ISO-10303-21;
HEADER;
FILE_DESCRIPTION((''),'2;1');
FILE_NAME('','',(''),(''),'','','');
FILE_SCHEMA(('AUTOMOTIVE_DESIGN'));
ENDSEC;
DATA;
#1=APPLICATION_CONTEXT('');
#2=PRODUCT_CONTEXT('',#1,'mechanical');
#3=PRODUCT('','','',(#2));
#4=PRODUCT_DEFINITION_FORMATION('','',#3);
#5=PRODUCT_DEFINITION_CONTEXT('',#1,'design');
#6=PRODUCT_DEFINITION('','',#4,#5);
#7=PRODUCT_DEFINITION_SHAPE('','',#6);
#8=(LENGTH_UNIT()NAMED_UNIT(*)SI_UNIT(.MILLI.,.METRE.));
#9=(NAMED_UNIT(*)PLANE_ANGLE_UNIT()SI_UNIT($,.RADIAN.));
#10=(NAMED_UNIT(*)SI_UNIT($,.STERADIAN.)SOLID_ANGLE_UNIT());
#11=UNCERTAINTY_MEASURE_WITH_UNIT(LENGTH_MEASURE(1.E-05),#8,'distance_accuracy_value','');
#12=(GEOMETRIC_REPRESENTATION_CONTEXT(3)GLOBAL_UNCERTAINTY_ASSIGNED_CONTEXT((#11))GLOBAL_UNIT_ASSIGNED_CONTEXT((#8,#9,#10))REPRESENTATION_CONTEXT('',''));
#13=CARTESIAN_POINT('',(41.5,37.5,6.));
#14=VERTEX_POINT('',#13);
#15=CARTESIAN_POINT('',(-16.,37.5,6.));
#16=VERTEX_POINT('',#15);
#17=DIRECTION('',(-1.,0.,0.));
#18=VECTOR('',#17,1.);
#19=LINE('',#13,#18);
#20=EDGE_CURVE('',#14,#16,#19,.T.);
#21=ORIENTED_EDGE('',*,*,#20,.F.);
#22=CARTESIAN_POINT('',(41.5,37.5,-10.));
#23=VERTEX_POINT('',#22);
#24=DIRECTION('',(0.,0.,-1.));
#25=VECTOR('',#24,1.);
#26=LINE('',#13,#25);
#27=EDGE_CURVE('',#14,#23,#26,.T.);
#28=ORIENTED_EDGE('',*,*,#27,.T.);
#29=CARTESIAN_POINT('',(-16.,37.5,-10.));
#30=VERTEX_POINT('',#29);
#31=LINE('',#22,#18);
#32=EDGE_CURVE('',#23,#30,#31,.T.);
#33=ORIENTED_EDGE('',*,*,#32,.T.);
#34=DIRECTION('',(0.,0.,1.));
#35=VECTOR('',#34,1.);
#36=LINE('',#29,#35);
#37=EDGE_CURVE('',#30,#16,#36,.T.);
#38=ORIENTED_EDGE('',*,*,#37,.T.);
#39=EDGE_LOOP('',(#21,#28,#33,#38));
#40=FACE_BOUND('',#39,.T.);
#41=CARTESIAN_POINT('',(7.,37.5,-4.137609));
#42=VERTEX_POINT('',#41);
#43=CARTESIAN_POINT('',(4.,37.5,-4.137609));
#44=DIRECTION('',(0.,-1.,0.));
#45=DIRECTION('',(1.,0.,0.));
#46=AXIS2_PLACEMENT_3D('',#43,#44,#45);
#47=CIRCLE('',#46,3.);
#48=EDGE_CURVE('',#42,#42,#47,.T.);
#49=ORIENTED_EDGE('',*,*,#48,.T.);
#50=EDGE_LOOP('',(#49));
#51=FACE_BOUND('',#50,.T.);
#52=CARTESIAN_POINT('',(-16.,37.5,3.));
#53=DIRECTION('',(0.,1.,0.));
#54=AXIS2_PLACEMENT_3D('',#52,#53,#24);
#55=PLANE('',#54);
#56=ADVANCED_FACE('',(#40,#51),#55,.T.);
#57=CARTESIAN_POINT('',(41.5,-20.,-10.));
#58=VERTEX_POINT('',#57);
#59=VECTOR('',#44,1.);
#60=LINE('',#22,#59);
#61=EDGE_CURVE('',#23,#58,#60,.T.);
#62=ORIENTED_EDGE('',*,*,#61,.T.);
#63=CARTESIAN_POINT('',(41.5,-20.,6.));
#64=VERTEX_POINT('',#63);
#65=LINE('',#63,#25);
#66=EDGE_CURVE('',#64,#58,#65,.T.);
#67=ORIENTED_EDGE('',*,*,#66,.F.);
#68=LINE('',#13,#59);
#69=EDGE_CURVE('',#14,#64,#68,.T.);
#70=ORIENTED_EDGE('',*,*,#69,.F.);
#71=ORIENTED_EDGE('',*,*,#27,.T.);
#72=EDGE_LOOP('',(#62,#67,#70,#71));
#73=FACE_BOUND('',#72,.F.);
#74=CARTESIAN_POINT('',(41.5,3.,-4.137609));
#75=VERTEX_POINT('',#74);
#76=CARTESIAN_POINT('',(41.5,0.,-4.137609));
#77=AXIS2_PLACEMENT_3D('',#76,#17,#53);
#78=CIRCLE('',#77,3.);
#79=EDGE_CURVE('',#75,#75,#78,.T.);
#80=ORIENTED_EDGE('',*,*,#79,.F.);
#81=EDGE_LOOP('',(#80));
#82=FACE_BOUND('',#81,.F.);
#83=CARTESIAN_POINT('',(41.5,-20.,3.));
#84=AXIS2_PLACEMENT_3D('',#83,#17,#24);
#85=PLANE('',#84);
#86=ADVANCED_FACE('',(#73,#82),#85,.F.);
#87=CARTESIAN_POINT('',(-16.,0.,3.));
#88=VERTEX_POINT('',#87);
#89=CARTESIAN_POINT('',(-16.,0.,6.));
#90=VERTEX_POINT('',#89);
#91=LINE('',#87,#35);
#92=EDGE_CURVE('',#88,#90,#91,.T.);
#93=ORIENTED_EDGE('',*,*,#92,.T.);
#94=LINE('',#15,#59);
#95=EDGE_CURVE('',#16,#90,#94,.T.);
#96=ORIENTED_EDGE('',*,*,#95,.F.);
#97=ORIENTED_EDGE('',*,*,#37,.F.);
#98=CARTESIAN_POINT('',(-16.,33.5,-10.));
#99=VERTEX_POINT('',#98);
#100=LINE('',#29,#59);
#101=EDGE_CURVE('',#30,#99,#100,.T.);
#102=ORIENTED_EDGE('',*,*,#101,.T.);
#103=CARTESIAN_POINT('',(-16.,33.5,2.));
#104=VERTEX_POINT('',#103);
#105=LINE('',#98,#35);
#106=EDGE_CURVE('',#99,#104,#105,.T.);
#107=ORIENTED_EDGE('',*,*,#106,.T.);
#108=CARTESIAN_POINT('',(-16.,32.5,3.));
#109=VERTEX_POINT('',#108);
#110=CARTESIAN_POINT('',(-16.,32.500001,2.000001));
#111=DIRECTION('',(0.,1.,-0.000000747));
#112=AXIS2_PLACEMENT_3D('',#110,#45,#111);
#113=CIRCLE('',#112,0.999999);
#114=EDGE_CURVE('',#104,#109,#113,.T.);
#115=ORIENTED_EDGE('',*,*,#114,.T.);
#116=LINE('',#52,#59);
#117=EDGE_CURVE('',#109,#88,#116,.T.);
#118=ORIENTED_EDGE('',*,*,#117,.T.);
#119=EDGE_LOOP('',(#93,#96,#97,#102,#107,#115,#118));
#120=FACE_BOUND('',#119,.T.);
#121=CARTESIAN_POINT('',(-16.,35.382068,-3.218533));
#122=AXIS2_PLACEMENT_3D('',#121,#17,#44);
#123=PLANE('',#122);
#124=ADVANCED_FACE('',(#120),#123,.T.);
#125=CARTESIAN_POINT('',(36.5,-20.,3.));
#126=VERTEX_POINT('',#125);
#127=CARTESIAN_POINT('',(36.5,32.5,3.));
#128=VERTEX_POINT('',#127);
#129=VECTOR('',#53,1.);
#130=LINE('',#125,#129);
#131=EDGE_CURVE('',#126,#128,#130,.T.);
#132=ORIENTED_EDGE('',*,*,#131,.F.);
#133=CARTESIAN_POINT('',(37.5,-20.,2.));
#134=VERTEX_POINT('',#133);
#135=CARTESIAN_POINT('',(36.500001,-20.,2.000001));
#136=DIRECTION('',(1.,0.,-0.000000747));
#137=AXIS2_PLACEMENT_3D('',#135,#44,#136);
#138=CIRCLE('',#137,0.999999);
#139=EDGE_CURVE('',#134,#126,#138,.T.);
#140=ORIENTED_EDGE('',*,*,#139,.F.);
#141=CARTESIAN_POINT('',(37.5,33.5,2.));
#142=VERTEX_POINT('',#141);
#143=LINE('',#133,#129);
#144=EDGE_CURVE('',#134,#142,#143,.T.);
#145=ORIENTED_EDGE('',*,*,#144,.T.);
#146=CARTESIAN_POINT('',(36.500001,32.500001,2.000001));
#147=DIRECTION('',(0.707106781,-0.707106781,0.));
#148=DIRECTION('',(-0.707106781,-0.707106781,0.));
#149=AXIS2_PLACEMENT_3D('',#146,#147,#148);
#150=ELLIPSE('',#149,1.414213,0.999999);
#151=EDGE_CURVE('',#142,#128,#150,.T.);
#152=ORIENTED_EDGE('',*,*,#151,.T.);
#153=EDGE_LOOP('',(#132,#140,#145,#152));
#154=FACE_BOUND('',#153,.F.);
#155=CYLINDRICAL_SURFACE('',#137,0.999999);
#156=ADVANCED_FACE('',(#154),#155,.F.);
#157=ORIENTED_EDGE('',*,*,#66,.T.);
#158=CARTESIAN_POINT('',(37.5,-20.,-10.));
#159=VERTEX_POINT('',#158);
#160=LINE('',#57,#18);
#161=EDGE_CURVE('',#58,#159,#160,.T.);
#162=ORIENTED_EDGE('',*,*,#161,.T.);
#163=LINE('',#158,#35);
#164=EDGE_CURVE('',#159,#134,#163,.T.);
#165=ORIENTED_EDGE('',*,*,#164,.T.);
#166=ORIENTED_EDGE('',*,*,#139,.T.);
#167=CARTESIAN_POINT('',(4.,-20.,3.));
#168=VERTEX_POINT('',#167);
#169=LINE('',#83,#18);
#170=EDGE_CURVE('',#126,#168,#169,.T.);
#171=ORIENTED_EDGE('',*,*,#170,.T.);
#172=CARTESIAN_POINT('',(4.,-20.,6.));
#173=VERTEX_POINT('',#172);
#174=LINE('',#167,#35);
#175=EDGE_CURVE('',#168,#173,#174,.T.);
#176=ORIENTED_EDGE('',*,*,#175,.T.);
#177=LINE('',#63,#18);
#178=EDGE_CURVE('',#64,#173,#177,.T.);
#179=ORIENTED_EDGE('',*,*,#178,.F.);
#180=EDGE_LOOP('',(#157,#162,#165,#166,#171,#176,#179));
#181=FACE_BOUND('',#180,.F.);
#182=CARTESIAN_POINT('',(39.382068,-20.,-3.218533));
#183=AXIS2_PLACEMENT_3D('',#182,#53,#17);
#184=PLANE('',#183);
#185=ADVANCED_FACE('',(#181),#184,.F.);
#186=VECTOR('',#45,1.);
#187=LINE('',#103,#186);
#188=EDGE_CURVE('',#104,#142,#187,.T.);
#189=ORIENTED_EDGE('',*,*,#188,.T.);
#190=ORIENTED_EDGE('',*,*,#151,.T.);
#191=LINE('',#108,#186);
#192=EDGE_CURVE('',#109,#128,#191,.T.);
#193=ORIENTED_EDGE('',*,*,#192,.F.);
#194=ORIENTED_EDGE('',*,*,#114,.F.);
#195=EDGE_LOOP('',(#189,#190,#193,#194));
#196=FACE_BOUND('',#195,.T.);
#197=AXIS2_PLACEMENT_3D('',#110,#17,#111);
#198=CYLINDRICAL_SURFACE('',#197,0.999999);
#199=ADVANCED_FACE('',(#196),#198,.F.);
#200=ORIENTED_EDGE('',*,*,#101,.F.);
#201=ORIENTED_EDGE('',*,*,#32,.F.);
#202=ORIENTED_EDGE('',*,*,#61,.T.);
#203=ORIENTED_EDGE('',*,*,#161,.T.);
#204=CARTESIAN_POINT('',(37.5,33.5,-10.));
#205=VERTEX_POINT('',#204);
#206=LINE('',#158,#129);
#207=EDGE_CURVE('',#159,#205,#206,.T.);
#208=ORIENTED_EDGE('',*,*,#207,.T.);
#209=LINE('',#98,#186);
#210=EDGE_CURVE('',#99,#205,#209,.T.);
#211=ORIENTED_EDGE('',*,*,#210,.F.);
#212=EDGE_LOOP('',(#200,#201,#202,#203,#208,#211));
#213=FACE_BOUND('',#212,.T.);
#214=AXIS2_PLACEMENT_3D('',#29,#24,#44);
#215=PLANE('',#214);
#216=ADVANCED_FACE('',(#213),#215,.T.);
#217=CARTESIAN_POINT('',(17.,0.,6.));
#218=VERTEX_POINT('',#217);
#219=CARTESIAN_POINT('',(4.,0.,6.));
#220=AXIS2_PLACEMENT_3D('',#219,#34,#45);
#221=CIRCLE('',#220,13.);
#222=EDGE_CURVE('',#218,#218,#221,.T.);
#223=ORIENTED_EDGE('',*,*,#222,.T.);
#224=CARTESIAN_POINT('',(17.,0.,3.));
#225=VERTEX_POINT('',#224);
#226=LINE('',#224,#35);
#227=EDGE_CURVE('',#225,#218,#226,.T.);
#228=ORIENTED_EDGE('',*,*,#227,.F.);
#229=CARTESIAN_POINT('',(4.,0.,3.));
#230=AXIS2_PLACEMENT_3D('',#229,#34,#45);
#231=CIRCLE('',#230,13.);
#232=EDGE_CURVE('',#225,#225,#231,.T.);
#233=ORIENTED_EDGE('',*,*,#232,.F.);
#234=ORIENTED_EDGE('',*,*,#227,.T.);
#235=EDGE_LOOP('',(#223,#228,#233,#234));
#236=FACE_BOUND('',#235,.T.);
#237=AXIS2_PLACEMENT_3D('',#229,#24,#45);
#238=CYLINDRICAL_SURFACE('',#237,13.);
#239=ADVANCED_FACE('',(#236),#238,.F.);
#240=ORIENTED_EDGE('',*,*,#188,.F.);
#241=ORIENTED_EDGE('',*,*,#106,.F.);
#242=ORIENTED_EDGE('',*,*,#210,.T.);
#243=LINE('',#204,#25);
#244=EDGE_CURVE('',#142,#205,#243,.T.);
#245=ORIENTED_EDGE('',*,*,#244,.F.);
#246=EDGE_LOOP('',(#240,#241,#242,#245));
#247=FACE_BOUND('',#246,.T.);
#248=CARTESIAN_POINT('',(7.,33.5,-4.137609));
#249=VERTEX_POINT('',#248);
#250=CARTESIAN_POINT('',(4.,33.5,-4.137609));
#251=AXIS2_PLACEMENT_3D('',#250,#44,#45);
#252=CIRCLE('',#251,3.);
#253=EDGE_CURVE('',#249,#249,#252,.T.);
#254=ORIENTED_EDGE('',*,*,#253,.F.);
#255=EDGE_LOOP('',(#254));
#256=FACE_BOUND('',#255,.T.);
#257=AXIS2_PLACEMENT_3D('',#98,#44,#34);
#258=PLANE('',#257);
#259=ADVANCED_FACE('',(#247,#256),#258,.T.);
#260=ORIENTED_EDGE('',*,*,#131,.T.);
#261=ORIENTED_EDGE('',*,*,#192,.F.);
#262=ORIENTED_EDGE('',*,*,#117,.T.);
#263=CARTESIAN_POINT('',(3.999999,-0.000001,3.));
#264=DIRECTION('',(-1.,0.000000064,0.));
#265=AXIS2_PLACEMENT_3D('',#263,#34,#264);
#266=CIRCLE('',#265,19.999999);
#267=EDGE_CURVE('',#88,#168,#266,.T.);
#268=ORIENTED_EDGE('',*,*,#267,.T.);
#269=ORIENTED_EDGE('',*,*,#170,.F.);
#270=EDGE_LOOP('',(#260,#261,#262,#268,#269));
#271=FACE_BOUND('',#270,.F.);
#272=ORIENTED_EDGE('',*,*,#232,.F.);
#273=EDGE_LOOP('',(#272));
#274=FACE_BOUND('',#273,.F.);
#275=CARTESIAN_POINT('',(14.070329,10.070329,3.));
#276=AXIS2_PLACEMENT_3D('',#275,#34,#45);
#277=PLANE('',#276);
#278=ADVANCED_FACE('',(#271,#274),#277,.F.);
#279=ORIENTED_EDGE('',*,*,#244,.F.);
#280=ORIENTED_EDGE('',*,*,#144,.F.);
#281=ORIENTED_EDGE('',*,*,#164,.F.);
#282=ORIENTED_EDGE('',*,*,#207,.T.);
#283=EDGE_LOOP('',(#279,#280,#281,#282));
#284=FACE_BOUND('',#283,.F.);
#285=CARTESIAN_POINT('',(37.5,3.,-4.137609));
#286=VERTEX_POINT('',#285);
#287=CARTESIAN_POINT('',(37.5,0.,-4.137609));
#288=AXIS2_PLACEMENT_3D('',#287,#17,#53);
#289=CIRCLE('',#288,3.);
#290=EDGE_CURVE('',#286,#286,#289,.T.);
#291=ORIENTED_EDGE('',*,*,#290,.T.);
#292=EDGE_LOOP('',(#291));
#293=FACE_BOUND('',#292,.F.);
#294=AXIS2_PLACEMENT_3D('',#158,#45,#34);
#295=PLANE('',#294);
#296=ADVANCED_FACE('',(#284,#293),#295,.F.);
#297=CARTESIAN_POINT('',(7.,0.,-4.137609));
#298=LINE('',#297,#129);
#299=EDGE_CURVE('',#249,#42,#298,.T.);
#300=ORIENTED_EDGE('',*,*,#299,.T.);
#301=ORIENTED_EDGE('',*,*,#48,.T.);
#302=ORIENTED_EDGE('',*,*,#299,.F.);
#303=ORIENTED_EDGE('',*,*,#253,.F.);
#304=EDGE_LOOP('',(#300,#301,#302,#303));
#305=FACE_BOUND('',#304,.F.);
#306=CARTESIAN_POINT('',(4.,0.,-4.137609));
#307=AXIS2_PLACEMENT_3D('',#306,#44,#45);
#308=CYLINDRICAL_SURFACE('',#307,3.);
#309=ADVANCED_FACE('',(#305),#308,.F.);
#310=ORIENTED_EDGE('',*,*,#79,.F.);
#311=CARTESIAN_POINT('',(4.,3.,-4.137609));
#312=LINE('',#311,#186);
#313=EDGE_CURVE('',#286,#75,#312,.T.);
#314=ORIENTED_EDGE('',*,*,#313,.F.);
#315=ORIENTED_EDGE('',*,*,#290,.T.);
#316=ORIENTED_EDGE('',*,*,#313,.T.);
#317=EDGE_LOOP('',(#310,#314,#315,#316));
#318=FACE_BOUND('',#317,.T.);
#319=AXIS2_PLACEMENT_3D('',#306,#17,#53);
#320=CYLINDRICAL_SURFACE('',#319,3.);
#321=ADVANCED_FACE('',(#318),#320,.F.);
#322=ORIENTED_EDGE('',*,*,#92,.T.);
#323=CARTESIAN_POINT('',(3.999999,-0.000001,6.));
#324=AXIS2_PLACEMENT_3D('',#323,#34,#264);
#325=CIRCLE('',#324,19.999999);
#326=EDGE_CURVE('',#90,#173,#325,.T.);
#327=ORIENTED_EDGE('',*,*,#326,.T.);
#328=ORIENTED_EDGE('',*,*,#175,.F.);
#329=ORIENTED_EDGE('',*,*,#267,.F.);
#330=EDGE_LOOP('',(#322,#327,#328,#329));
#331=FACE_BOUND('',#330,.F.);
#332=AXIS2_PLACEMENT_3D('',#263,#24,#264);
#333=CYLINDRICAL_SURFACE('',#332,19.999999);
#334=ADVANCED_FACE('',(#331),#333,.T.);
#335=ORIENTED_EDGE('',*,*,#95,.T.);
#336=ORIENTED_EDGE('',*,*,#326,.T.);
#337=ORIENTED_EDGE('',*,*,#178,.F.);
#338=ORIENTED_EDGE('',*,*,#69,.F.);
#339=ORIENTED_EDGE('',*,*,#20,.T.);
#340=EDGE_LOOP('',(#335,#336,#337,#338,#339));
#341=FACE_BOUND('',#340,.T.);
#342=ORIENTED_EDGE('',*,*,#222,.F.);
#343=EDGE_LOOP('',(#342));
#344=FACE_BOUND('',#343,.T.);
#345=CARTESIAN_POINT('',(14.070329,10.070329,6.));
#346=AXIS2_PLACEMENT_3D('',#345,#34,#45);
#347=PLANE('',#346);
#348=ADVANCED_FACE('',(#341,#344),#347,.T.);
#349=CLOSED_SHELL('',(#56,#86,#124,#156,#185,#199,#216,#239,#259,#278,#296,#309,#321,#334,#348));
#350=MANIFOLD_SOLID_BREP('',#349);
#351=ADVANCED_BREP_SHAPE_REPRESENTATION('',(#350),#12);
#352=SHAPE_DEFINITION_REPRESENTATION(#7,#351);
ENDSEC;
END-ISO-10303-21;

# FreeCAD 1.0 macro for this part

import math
import FreeCAD as App
import Part
import Sketcher
Q = App.Units.Quantity

doc = App.newDocument("Part")
body = doc.addObject("PartDesign::Body", "Body")

sketch1 = doc.addObject("Sketcher::SketchObject", "Sketch")
body.addObject(sketch1)
sketch1.AttachmentSupport = (doc.XY_Plane, [""])
sketch1.MapMode = "FlatFace"
sketch1.AttachmentOffset = App.Placement(App.Vector(0, 0, 3), App.Rotation())
sketch1.addGeometry([
    Part.ArcOfCircle(Part.Circle(App.Vector(0, 0, 0), App.Vector(0, 0, 1), 20), math.radians(180), math.radians(270)),
    Part.LineSegment(App.Vector(0, -20, 0), App.Vector(38, -20, 0)),
    Part.LineSegment(App.Vector(38, -20, 0), App.Vector(38, 38, 0)),
    Part.LineSegment(App.Vector(38, 38, 0), App.Vector(-20, 38, 0)),
    Part.LineSegment(App.Vector(-20, 38, 0), App.Vector(-20, 0, 0)),
    Part.Circle(App.Vector(0, 0, 0), App.Vector(0, 0, 1), 13),
], False)
sketch1.addConstraint([
    Sketcher.Constraint("Tangent", 0, 2, 1, 1),
    Sketcher.Constraint("Coincident", 1, 2, 2, 1),
    Sketcher.Constraint("Coincident", 2, 2, 3, 1),
    Sketcher.Constraint("Coincident", 3, 2, 4, 1),
    Sketcher.Constraint("Tangent", 4, 2, 0, 1),
    Sketcher.Constraint("Horizontal", 1),
    Sketcher.Constraint("Vertical", 2),
    Sketcher.Constraint("Horizontal", 3),
    Sketcher.Constraint("Vertical", 4),
    Sketcher.Constraint("Coincident", 0, 3, -1, 1),
    Sketcher.Constraint("Coincident", 5, 3, -1, 1),
    Sketcher.Constraint("Equal", 3, 2),
    Sketcher.Constraint("Diameter", 5, Q("26 mm")),
    Sketcher.Constraint("Radius", 0, Q("19.999999 mm")),
    Sketcher.Constraint("DistanceX", 1, 1, 1, 2, Q("37.5 mm")),
])
pad1 = doc.addObject("PartDesign::Pad", "Pad")
body.addObject(pad1)
pad1.Profile = sketch1
pad1.Length = 3

sketch2 = doc.addObject("Sketcher::SketchObject", "Sketch001")
body.addObject(sketch2)
sketch2.AttachmentSupport = (doc.XZ_Plane, [""])
sketch2.MapMode = "FlatFace"
sketch2.AttachmentOffset = App.Placement(App.Vector(0, 0, 20), App.Rotation())
sketch2.addGeometry([
    Part.LineSegment(App.Vector(37.5, 3, 0), App.Vector(32.5, 3, 0)),
    Part.ArcOfCircle(Part.Circle(App.Vector(32.5, 2, 0), App.Vector(0, 0, 1), 1), math.radians(0), math.radians(90)),
    Part.LineSegment(App.Vector(33.5, 2, 0), App.Vector(33.5, -10, 0)),
    Part.LineSegment(App.Vector(33.5, -10, 0), App.Vector(37.5, -10, 0)),
    Part.LineSegment(App.Vector(37.5, -10, 0), App.Vector(37.5, 3, 0)),
], False)
sketch2.addConstraint([
    Sketcher.Constraint("Tangent", 0, 2, 1, 2),
    Sketcher.Constraint("Tangent", 1, 1, 2, 1),
    Sketcher.Constraint("Coincident", 2, 2, 3, 1),
    Sketcher.Constraint("Coincident", 3, 2, 4, 1),
    Sketcher.Constraint("Coincident", 4, 2, 0, 1),
    Sketcher.Constraint("Horizontal", 0),
    Sketcher.Constraint("Vertical", 2),
    Sketcher.Constraint("Horizontal", 3),
    Sketcher.Constraint("Vertical", 4),
    Sketcher.Constraint("Radius", 1, Q("0.999999 mm")),
    Sketcher.Constraint("DistanceX", 0, 2, 0, 1, Q("5 mm")),
    Sketcher.Constraint("DistanceY", 2, 2, 2, 1, Q("12 mm")),
    Sketcher.Constraint("DistanceY", -1, 1, 1, 3, Q("2.000001 mm")),
    Sketcher.Constraint("DistanceX", -1, 1, 1, 3, Q("32.500001 mm")),
])
pad2 = doc.addObject("PartDesign::Pad", "Pad001")
body.addObject(pad2)
pad2.Profile = sketch2
pad2.Length = 57.5
pad2.Reversed = True

sketch3 = doc.addObject("Sketcher::SketchObject", "Sketch002")
body.addObject(sketch3)
sketch3.AttachmentSupport = (doc.YZ_Plane, [""])
sketch3.MapMode = "FlatFace"
sketch3.AttachmentOffset = App.Placement(App.Vector(0, 0, -20), App.Rotation())
sketch3.addGeometry([
    Part.LineSegment(App.Vector(37.5, 3, 0), App.Vector(32.5, 3, 0)),
    Part.ArcOfCircle(Part.Circle(App.Vector(32.5, 2, 0), App.Vector(0, 0, 1), 1), math.radians(0), math.radians(90)),
    Part.LineSegment(App.Vector(33.5, 2, 0), App.Vector(33.5, -10, 0)),
    Part.LineSegment(App.Vector(33.5, -10, 0), App.Vector(37.5, -10, 0)),
    Part.LineSegment(App.Vector(37.5, -10, 0), App.Vector(37.5, 3, 0)),
], False)
sketch3.addConstraint([
    Sketcher.Constraint("Tangent", 0, 2, 1, 2),
    Sketcher.Constraint("Tangent", 1, 1, 2, 1),
    Sketcher.Constraint("Coincident", 2, 2, 3, 1),
    Sketcher.Constraint("Coincident", 3, 2, 4, 1),
    Sketcher.Constraint("Coincident", 4, 2, 0, 1),
    Sketcher.Constraint("Horizontal", 0),
    Sketcher.Constraint("Vertical", 2),
    Sketcher.Constraint("Horizontal", 3),
    Sketcher.Constraint("Vertical", 4),
    Sketcher.Constraint("Radius", 1, Q("0.999999 mm")),
    Sketcher.Constraint("DistanceX", 0, 2, 0, 1, Q("5 mm")),
    Sketcher.Constraint("DistanceY", 2, 2, 2, 1, Q("12 mm")),
    Sketcher.Constraint("DistanceY", -1, 1, 1, 3, Q("2.000001 mm")),
    Sketcher.Constraint("DistanceX", -1, 1, 1, 3, Q("32.500001 mm")),
])
pad3 = doc.addObject("PartDesign::Pad", "Pad002")
body.addObject(pad3)
pad3.Profile = sketch3
pad3.Length = 57.5

sketch4 = doc.addObject("Sketcher::SketchObject", "Sketch003")
body.addObject(sketch4)
sketch4.AttachmentSupport = (doc.YZ_Plane, [""])
sketch4.MapMode = "FlatFace"
sketch4.addGeometry(Part.Circle(App.Vector(0, -4.1, 0), App.Vector(0, 0, 1), 3), False)
sketch4.addConstraint([
    Sketcher.Constraint("PointOnObject", 0, 3, -2),
    Sketcher.Constraint("Diameter", 0, Q("6 mm")),
    Sketcher.Constraint("DistanceY", 0, 3, -1, 1, Q("4.137609 mm")),
])
pocket1 = doc.addObject("PartDesign::Pocket", "Pocket")
body.addObject(pocket1)
pocket1.Profile = sketch4
pocket1.Type = "ThroughAll"
pocket1.Reversed = True

sketch5 = doc.addObject("Sketcher::SketchObject", "Sketch004")
body.addObject(sketch5)
sketch5.AttachmentSupport = (doc.XZ_Plane, [""])
sketch5.MapMode = "FlatFace"
sketch5.addGeometry(Part.Circle(App.Vector(0, -4.1, 0), App.Vector(0, 0, 1), 3), False)
sketch5.addConstraint([
    Sketcher.Constraint("PointOnObject", 0, 3, -2),
    Sketcher.Constraint("Diameter", 0, Q("6 mm")),
    Sketcher.Constraint("DistanceY", 0, 3, -1, 1, Q("4.137609 mm")),
])
pocket2 = doc.addObject("PartDesign::Pocket", "Pocket001")
body.addObject(pocket2)
pocket2.Profile = sketch5
pocket2.Type = "ThroughAll"
body2 = doc.addObject("PartDesign::Body", "Body001")
doc.recompute()

body.Placement = App.Placement(App.Vector(4, 0, 0), App.Rotation(App.Vector(0, 0, 1), 0))
boolean = doc.addObject("PartDesign::Boolean", "Boolean")
body2.addObject(boolean)
boolean.Type = "Fuse"
boolean.addObjects([body])

doc.recompute()
